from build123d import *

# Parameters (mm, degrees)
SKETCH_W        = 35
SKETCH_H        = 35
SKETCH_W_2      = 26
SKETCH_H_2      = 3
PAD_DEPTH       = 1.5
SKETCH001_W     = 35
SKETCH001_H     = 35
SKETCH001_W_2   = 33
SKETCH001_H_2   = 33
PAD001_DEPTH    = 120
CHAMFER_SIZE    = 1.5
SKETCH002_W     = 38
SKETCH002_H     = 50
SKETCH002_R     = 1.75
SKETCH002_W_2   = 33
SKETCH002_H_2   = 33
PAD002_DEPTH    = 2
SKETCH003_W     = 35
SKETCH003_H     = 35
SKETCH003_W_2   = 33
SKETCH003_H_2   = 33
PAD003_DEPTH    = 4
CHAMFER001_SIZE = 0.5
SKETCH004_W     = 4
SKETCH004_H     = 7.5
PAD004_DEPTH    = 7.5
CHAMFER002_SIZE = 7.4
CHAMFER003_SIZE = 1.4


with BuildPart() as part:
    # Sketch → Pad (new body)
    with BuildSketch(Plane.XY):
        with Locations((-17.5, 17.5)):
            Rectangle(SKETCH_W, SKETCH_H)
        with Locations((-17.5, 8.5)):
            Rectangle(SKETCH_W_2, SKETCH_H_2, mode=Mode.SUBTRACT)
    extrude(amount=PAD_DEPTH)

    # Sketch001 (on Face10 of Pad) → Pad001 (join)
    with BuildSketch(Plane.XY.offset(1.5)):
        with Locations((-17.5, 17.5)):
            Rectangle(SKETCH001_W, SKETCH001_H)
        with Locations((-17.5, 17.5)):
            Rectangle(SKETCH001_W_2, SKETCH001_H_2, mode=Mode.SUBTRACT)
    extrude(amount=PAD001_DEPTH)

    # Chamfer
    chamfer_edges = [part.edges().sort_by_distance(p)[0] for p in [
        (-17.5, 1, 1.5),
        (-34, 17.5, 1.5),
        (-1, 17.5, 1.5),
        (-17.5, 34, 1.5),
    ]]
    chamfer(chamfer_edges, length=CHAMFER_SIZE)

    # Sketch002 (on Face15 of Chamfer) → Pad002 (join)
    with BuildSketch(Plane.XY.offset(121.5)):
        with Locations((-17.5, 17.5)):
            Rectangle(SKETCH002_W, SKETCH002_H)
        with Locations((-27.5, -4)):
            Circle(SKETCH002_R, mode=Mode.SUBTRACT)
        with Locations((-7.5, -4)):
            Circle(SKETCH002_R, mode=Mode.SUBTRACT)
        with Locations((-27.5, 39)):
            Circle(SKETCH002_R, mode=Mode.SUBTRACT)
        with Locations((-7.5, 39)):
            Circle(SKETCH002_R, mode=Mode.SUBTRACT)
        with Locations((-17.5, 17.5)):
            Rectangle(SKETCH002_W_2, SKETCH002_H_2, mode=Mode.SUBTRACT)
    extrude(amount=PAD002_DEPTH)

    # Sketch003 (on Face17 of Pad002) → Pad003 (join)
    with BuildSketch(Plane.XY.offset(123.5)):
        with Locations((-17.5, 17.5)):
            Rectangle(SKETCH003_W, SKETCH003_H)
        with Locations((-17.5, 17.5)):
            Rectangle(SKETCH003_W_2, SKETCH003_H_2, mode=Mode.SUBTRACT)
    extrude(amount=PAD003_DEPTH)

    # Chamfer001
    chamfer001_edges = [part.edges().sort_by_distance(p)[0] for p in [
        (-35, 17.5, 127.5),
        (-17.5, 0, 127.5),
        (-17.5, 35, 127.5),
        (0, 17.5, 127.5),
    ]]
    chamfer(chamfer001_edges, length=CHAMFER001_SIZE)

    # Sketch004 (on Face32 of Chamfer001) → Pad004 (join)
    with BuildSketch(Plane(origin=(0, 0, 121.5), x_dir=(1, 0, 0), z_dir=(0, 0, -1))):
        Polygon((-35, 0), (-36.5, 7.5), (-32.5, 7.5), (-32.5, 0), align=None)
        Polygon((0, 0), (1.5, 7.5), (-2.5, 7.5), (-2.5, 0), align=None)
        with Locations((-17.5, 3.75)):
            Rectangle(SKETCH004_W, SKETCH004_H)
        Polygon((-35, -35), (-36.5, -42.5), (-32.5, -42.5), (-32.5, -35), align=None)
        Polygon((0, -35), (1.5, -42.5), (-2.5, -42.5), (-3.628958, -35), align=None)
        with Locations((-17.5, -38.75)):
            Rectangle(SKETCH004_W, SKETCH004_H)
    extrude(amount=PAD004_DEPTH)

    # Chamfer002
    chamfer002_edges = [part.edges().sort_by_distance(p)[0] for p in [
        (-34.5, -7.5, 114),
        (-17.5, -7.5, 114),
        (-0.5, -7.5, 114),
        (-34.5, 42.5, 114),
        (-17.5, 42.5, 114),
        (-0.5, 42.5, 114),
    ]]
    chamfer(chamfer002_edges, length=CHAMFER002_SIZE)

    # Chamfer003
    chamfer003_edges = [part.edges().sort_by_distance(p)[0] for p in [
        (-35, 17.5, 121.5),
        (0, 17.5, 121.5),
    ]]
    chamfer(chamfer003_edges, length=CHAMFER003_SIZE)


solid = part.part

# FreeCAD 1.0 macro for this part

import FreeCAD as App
import Part
import Sketcher
from FreeCAD import Vector


def edges_at(feature, points):
    """Names of the edges that pass closest to the given points."""
    edges = feature.Shape.Edges
    near = lambda p: min(range(len(edges)), key=lambda i: edges[i].distToShape(Part.Vertex(*p))[0])
    return sorted({f"Edge{near(p) + 1}" for p in points})

doc = App.newDocument("Part")
body = doc.addObject("PartDesign::Body", "Body")

# Sketch on XY plane
sketch1 = body.newObject("Sketcher::SketchObject", "Sketch")
sketch1.AttachmentSupport = (doc.getObject("XY_Plane"), [""])
sketch1.MapMode = "FlatFace"
sketch1.addGeometry([
    Part.LineSegment(Vector(-35, 35, 0), Vector(-35, 0, 0)),  # 0
    Part.LineSegment(Vector(-35, 0, 0), Vector(0, 0, 0)),  # 1
    Part.LineSegment(Vector(0, 0, 0), Vector(0, 35, 0)),  # 2
    Part.LineSegment(Vector(0, 35, 0), Vector(-35, 35, 0)),  # 3
    Part.LineSegment(Vector(-4.5, 7, 0), Vector(-30.5, 7, 0)),  # 4
    Part.LineSegment(Vector(-30.5, 7, 0), Vector(-30.5, 10, 0)),  # 5
    Part.LineSegment(Vector(-30.5, 10, 0), Vector(-4.5, 10, 0)),  # 6
    Part.LineSegment(Vector(-4.5, 10, 0), Vector(-4.5, 7, 0)),  # 7
], False)
sketch1.addConstraint([
    Sketcher.Constraint("Coincident", 0, 2, 1, 1),
    Sketcher.Constraint("Coincident", 1, 2, 2, 1),
    Sketcher.Constraint("Coincident", 2, 2, 3, 1),
    Sketcher.Constraint("Coincident", 3, 2, 0, 1),
    Sketcher.Constraint("Coincident", 4, 2, 5, 1),
    Sketcher.Constraint("Coincident", 5, 2, 6, 1),
    Sketcher.Constraint("Coincident", 6, 2, 7, 1),
    Sketcher.Constraint("Coincident", 7, 2, 4, 1),
    Sketcher.Constraint("Vertical", 0),
    Sketcher.Constraint("Horizontal", 1),
    Sketcher.Constraint("Vertical", 2),
    Sketcher.Constraint("Horizontal", 3),
    Sketcher.Constraint("Horizontal", 4),
    Sketcher.Constraint("Vertical", 5),
    Sketcher.Constraint("Horizontal", 6),
    Sketcher.Constraint("Vertical", 7),
    Sketcher.Constraint("Coincident", 1, 2, -1, 1),
    Sketcher.Constraint("Equal", 3, 0),
    Sketcher.Constraint("DistanceX", 1, 1, 1, 2, 35.0),
    Sketcher.Constraint("DistanceX", 4, 2, 4, 1, 26.0),
    Sketcher.Constraint("DistanceY", 5, 1, 5, 2, 3.0),
    Sketcher.Constraint("DistanceY", -1, 1, 4, 2, 7.0),
    Sketcher.Constraint("DistanceX", 4, 2, -1, 1, 30.5),
])
pad1 = body.newObject("PartDesign::Pad", "Pad")
pad1.Profile = sketch1
pad1.Length = 1.5

# Sketch on XY plane
sketch2 = body.newObject("Sketcher::SketchObject", "Sketch001")
sketch2.AttachmentSupport = (doc.getObject("XY_Plane"), [""])
sketch2.MapMode = "FlatFace"
sketch2.AttachmentOffset = App.Placement(Vector(0, 0, 1.5), App.Rotation())
sketch2.addGeometry([
    Part.LineSegment(Vector(-35, 35, 0), Vector(-35, 0, 0)),  # 0
    Part.LineSegment(Vector(-35, 0, 0), Vector(0, 0, 0)),  # 1
    Part.LineSegment(Vector(0, 0, 0), Vector(0, 35, 0)),  # 2
    Part.LineSegment(Vector(0, 35, 0), Vector(-35, 35, 0)),  # 3
    Part.LineSegment(Vector(-1, 1, 0), Vector(-34, 1, 0)),  # 4
    Part.LineSegment(Vector(-34, 1, 0), Vector(-34, 34, 0)),  # 5
    Part.LineSegment(Vector(-34, 34, 0), Vector(-1, 34, 0)),  # 6
    Part.LineSegment(Vector(-1, 34, 0), Vector(-1, 1, 0)),  # 7
], False)
sketch2.addConstraint([
    Sketcher.Constraint("Coincident", 0, 2, 1, 1),
    Sketcher.Constraint("Coincident", 1, 2, 2, 1),
    Sketcher.Constraint("Coincident", 2, 2, 3, 1),
    Sketcher.Constraint("Coincident", 3, 2, 0, 1),
    Sketcher.Constraint("Coincident", 4, 2, 5, 1),
    Sketcher.Constraint("Coincident", 5, 2, 6, 1),
    Sketcher.Constraint("Coincident", 6, 2, 7, 1),
    Sketcher.Constraint("Coincident", 7, 2, 4, 1),
    Sketcher.Constraint("Vertical", 0),
    Sketcher.Constraint("Horizontal", 1),
    Sketcher.Constraint("Vertical", 2),
    Sketcher.Constraint("Horizontal", 3),
    Sketcher.Constraint("Horizontal", 4),
    Sketcher.Constraint("Vertical", 5),
    Sketcher.Constraint("Horizontal", 6),
    Sketcher.Constraint("Vertical", 7),
    Sketcher.Constraint("Coincident", 1, 2, -1, 1),
    Sketcher.Constraint("Equal", 3, 0),
    Sketcher.Constraint("Equal", 6, 5),
    Sketcher.Constraint("DistanceX", 1, 1, 1, 2, 35.0),
    Sketcher.Constraint("DistanceX", 4, 2, 4, 1, 33.0),
    Sketcher.Constraint("DistanceX", 4, 2, -1, 1, 34.0),
    Sketcher.Constraint("DistanceY", -1, 1, 4, 2, 1.0),
])
pad2 = body.newObject("PartDesign::Pad", "Pad001")
pad2.Profile = sketch2
pad2.Length = 120
doc.recompute()

chamfer = body.newObject("PartDesign::Chamfer", "Chamfer")
chamfer.Base = (pad2, edges_at(pad2, [
    (-17.5, 1, 1.5),
    (-34, 17.5, 1.5),
    (-1, 17.5, 1.5),
    (-17.5, 34, 1.5),
]))
chamfer.Size = 1.5

# Sketch on XY plane
sketch3 = body.newObject("Sketcher::SketchObject", "Sketch002")
sketch3.AttachmentSupport = (doc.getObject("XY_Plane"), [""])
sketch3.MapMode = "FlatFace"
sketch3.AttachmentOffset = App.Placement(Vector(0, 0, 121.5), App.Rotation())
sketch3.addGeometry([
    Part.LineSegment(Vector(-36.5, 42.5, 0), Vector(-36.5, -7.5, 0)),  # 0
    Part.LineSegment(Vector(-36.5, -7.5, 0), Vector(1.5, -7.5, 0)),  # 1
    Part.LineSegment(Vector(1.5, -7.5, 0), Vector(1.5, 42.5, 0)),  # 2
    Part.LineSegment(Vector(1.5, 42.5, 0), Vector(-36.5, 42.5, 0)),  # 3
    Part.Circle(Vector(-27.5, -4, 0), Vector(0, 0, 1), 1.8),  # 4
    Part.Circle(Vector(-7.5, -4, 0), Vector(0, 0, 1), 1.8),  # 5
    Part.Circle(Vector(-27.5, 39, 0), Vector(0, 0, 1), 1.8),  # 6
    Part.LineSegment(Vector(-1, 1, 0), Vector(-34, 1, 0)),  # 7
    Part.LineSegment(Vector(-34, 1, 0), Vector(-34, 34, 0)),  # 8
    Part.LineSegment(Vector(-34, 34, 0), Vector(-1, 34, 0)),  # 9
    Part.LineSegment(Vector(-1, 34, 0), Vector(-1, 1, 0)),  # 10
    Part.Circle(Vector(-7.5, 39, 0), Vector(0, 0, 1), 1.8),  # 11
], False)
sketch3.addConstraint([
    Sketcher.Constraint("Coincident", 0, 2, 1, 1),
    Sketcher.Constraint("Coincident", 1, 2, 2, 1),
    Sketcher.Constraint("Coincident", 2, 2, 3, 1),
    Sketcher.Constraint("Coincident", 3, 2, 0, 1),
    Sketcher.Constraint("Coincident", 7, 2, 8, 1),
    Sketcher.Constraint("Coincident", 8, 2, 9, 1),
    Sketcher.Constraint("Coincident", 9, 2, 10, 1),
    Sketcher.Constraint("Coincident", 10, 2, 7, 1),
    Sketcher.Constraint("Vertical", 0),
    Sketcher.Constraint("Horizontal", 1),
    Sketcher.Constraint("Vertical", 2),
    Sketcher.Constraint("Horizontal", 3),
    Sketcher.Constraint("Horizontal", 7),
    Sketcher.Constraint("Vertical", 8),
    Sketcher.Constraint("Horizontal", 9),
    Sketcher.Constraint("Vertical", 10),
    Sketcher.Constraint("Equal", 4, 5),
    Sketcher.Constraint("Equal", 5, 6),
    Sketcher.Constraint("Equal", 6, 11),
    Sketcher.Constraint("Horizontal", 4, 3, 5, 3),
    Sketcher.Constraint("Horizontal", 6, 3, 11, 3),
    Sketcher.Constraint("Vertical", 4, 3, 6, 3),
    Sketcher.Constraint("Vertical", 5, 3, 11, 3),
    Sketcher.Constraint("Equal", 9, 8),
    Sketcher.Constraint("Diameter", 4, 3.5),
    Sketcher.Constraint("DistanceX", 1, 1, 1, 2, 38.0),
    Sketcher.Constraint("DistanceX", 7, 2, 7, 1, 33.0),
    Sketcher.Constraint("DistanceY", 0, 2, 0, 1, 50.0),
    Sketcher.Constraint("DistanceY", 4, 3, -1, 1, 4.0),
    Sketcher.Constraint("DistanceY", -1, 1, 6, 3, 39.0),
    Sketcher.Constraint("DistanceX", 7, 2, -1, 1, 34.0),
    Sketcher.Constraint("DistanceY", -1, 1, 7, 2, 1.0),
    Sketcher.Constraint("DistanceX", 4, 3, 5, 3, 20.0),
    Sketcher.Constraint("DistanceX", 0, 2, 4, 3, 9.0),
    Sketcher.Constraint("DistanceX", 4, 3, -1, 1, 27.5),
    Sketcher.Constraint("DistanceY", 0, 2, -1, 1, 7.5),
])
pad3 = body.newObject("PartDesign::Pad", "Pad002")
pad3.Profile = sketch3
pad3.Length = 2

# Sketch on XY plane
sketch4 = body.newObject("Sketcher::SketchObject", "Sketch003")
sketch4.AttachmentSupport = (doc.getObject("XY_Plane"), [""])
sketch4.MapMode = "FlatFace"
sketch4.AttachmentOffset = App.Placement(Vector(0, 0, 123.5), App.Rotation())
sketch4.addGeometry([
    Part.LineSegment(Vector(-35, 35, 0), Vector(-35, 0, 0)),  # 0
    Part.LineSegment(Vector(-35, 0, 0), Vector(0, 0, 0)),  # 1
    Part.LineSegment(Vector(0, 0, 0), Vector(0, 35, 0)),  # 2
    Part.LineSegment(Vector(0, 35, 0), Vector(-35, 35, 0)),  # 3
    Part.LineSegment(Vector(-1, 1, 0), Vector(-34, 1, 0)),  # 4
    Part.LineSegment(Vector(-34, 1, 0), Vector(-34, 34, 0)),  # 5
    Part.LineSegment(Vector(-34, 34, 0), Vector(-1, 34, 0)),  # 6
    Part.LineSegment(Vector(-1, 34, 0), Vector(-1, 1, 0)),  # 7
], False)
sketch4.addConstraint([
    Sketcher.Constraint("Coincident", 0, 2, 1, 1),
    Sketcher.Constraint("Coincident", 1, 2, 2, 1),
    Sketcher.Constraint("Coincident", 2, 2, 3, 1),
    Sketcher.Constraint("Coincident", 3, 2, 0, 1),
    Sketcher.Constraint("Coincident", 4, 2, 5, 1),
    Sketcher.Constraint("Coincident", 5, 2, 6, 1),
    Sketcher.Constraint("Coincident", 6, 2, 7, 1),
    Sketcher.Constraint("Coincident", 7, 2, 4, 1),
    Sketcher.Constraint("Vertical", 0),
    Sketcher.Constraint("Horizontal", 1),
    Sketcher.Constraint("Vertical", 2),
    Sketcher.Constraint("Horizontal", 3),
    Sketcher.Constraint("Horizontal", 4),
    Sketcher.Constraint("Vertical", 5),
    Sketcher.Constraint("Horizontal", 6),
    Sketcher.Constraint("Vertical", 7),
    Sketcher.Constraint("Coincident", 1, 2, -1, 1),
    Sketcher.Constraint("Equal", 3, 0),
    Sketcher.Constraint("Equal", 6, 5),
    Sketcher.Constraint("DistanceX", 1, 1, 1, 2, 35.0),
    Sketcher.Constraint("DistanceX", 4, 2, 4, 1, 33.0),
    Sketcher.Constraint("DistanceX", 4, 2, -1, 1, 34.0),
    Sketcher.Constraint("DistanceY", -1, 1, 4, 2, 1.0),
])
pad4 = body.newObject("PartDesign::Pad", "Pad003")
pad4.Profile = sketch4
pad4.Length = 4
doc.recompute()

chamfer2 = body.newObject("PartDesign::Chamfer", "Chamfer001")
chamfer2.Base = (pad4, edges_at(pad4, [
    (-35, 17.5, 127.5),
    (-17.5, 0, 127.5),
    (-17.5, 35, 127.5),
    (0, 17.5, 127.5),
]))
chamfer2.Size = 0.5

# Sketch on XY plane
sketch5 = body.newObject("Sketcher::SketchObject", "Sketch004")
sketch5.AttachmentSupport = (doc.getObject("XY_Plane"), [""])
sketch5.MapMode = "FlatFace"
sketch5.AttachmentOffset = App.Placement(Vector(0, 0, 121.5), App.Rotation())
sketch5.addGeometry([
    Part.LineSegment(Vector(-36.5, -7.5, 0), Vector(-35, 0, 0)),  # 0
    Part.LineSegment(Vector(-35, 0, 0), Vector(-32.5, 0, 0)),  # 1
    Part.LineSegment(Vector(-32.5, 0, 0), Vector(-32.5, -7.5, 0)),  # 2
    Part.LineSegment(Vector(-32.5, -7.5, 0), Vector(-36.5, -7.5, 0)),  # 3
    Part.LineSegment(Vector(0, 0, 0), Vector(1.5, -7.5, 0)),  # 4
    Part.LineSegment(Vector(1.5, -7.5, 0), Vector(-2.5, -7.5, 0)),  # 5
    Part.LineSegment(Vector(-2.5, -7.5, 0), Vector(-2.5, 0, 0)),  # 6
    Part.LineSegment(Vector(-2.5, 0, 0), Vector(0, 0, 0)),  # 7
    Part.LineSegment(Vector(-19.5, -7.5, 0), Vector(-19.5, 0, 0)),  # 8
    Part.LineSegment(Vector(-19.5, 0, 0), Vector(-15.5, 0, 0)),  # 9
    Part.LineSegment(Vector(-15.5, 0, 0), Vector(-15.5, -7.5, 0)),  # 10
    Part.LineSegment(Vector(-15.5, -7.5, 0), Vector(-19.5, -7.5, 0)),  # 11
    Part.LineSegment(Vector(-35, 35, 0), Vector(-36.5, 42.5, 0)),  # 12
    Part.LineSegment(Vector(-36.5, 42.5, 0), Vector(-32.5, 42.5, 0)),  # 13
    Part.LineSegment(Vector(-32.5, 42.5, 0), Vector(-32.5, 35, 0)),  # 14
    Part.LineSegment(Vector(-32.5, 35, 0), Vector(-35, 35, 0)),  # 15
    Part.LineSegment(Vector(1.5, 42.5, 0), Vector(0, 35, 0)),  # 16
    Part.LineSegment(Vector(0, 35, 0), Vector(-3.6, 35, 0)),  # 17
    Part.LineSegment(Vector(-3.6, 35, 0), Vector(-2.5, 42.5, 0)),  # 18
    Part.LineSegment(Vector(-2.5, 42.5, 0), Vector(1.5, 42.5, 0)),  # 19
    Part.LineSegment(Vector(-19.5, 35, 0), Vector(-19.5, 42.5, 0)),  # 20
    Part.LineSegment(Vector(-19.5, 42.5, 0), Vector(-15.5, 42.5, 0)),  # 21
    Part.LineSegment(Vector(-15.5, 42.5, 0), Vector(-15.5, 35, 0)),  # 22
    Part.LineSegment(Vector(-15.5, 35, 0), Vector(-19.5, 35, 0)),  # 23
], False)
sketch5.addConstraint([
    Sketcher.Constraint("Coincident", 0, 2, 1, 1),
    Sketcher.Constraint("Coincident", 1, 2, 2, 1),
    Sketcher.Constraint("Coincident", 2, 2, 3, 1),
    Sketcher.Constraint("Coincident", 3, 2, 0, 1),
    Sketcher.Constraint("Coincident", 4, 2, 5, 1),
    Sketcher.Constraint("Coincident", 5, 2, 6, 1),
    Sketcher.Constraint("Coincident", 6, 2, 7, 1),
    Sketcher.Constraint("Coincident", 7, 2, 4, 1),
    Sketcher.Constraint("Coincident", 8, 2, 9, 1),
    Sketcher.Constraint("Coincident", 9, 2, 10, 1),
    Sketcher.Constraint("Coincident", 10, 2, 11, 1),
    Sketcher.Constraint("Coincident", 11, 2, 8, 1),
    Sketcher.Constraint("Coincident", 12, 2, 13, 1),
    Sketcher.Constraint("Coincident", 13, 2, 14, 1),
    Sketcher.Constraint("Coincident", 14, 2, 15, 1),
    Sketcher.Constraint("Coincident", 15, 2, 12, 1),
    Sketcher.Constraint("Coincident", 16, 2, 17, 1),
    Sketcher.Constraint("Coincident", 17, 2, 18, 1),
    Sketcher.Constraint("Coincident", 18, 2, 19, 1),
    Sketcher.Constraint("Coincident", 19, 2, 16, 1),
    Sketcher.Constraint("Coincident", 20, 2, 21, 1),
    Sketcher.Constraint("Coincident", 21, 2, 22, 1),
    Sketcher.Constraint("Coincident", 22, 2, 23, 1),
    Sketcher.Constraint("Coincident", 23, 2, 20, 1),
    Sketcher.Constraint("Horizontal", 1),
    Sketcher.Constraint("Vertical", 2),
    Sketcher.Constraint("Horizontal", 3),
    Sketcher.Constraint("Horizontal", 5),
    Sketcher.Constraint("Vertical", 6),
    Sketcher.Constraint("Horizontal", 7),
    Sketcher.Constraint("Vertical", 8),
    Sketcher.Constraint("Horizontal", 9),
    Sketcher.Constraint("Vertical", 10),
    Sketcher.Constraint("Horizontal", 11),
    Sketcher.Constraint("Horizontal", 13),
    Sketcher.Constraint("Vertical", 14),
    Sketcher.Constraint("Horizontal", 15),
    Sketcher.Constraint("Horizontal", 17),
    Sketcher.Constraint("Horizontal", 19),
    Sketcher.Constraint("Vertical", 20),
    Sketcher.Constraint("Horizontal", 21),
    Sketcher.Constraint("Vertical", 22),
    Sketcher.Constraint("Horizontal", 23),
    Sketcher.Constraint("Coincident", 7, 2, -1, 1),
    Sketcher.Constraint("PointOnObject", 0, 2, -1),
    Sketcher.Constraint("PointOnObject", 8, 2, -1),
    Sketcher.Constraint("PointOnObject", 16, 2, -2),
    Sketcher.Constraint("Parallel", 4, 12),
    Sketcher.Constraint("Parallel", 0, 16),
    Sketcher.Constraint("Horizontal", 3, 2, 4, 2),
    Sketcher.Constraint("Horizontal", 5, 2, 10, 2),
    Sketcher.Constraint("Horizontal", 15, 2, 16, 2),
    Sketcher.Constraint("Horizontal", 13, 2, 18, 2),
    Sketcher.Constraint("Horizontal", 19, 2, 20, 2),
    Sketcher.Constraint("Horizontal", 17, 2, 22, 2),
    Sketcher.Constraint("Vertical", 3, 2, 12, 2),
    Sketcher.Constraint("Vertical", 2, 2, 13, 2),
    Sketcher.Constraint("Vertical", 0, 2, 15, 2),
    Sketcher.Constraint("Vertical", 6, 2, 18, 2),
    Sketcher.Constraint("Vertical", 4, 2, 19, 2),
    Sketcher.Constraint("Vertical", 11, 2, 20, 2),
    Sketcher.Constraint("Vertical", 10, 2, 21, 2),
    Sketcher.Constraint("Equal", 3, 5),
    Sketcher.Constraint("Equal", 5, 9),
    Sketcher.Constraint("DistanceX", 3, 2, 3, 1, 4.0),
    Sketcher.Constraint("DistanceX", 1, 1, 1, 2, 2.5),
    Sketcher.Constraint("DistanceY", 2, 2, 2, 1, 7.5),
    Sketcher.Constraint("DistanceX", 0, 2, -1, 1, 35.0),
    Sketcher.Constraint("DistanceY", -1, 1, 14, 2, 35.0),
    Sketcher.Constraint("DistanceX", 1, 2, 8, 2, 13.0),
    Sketcher.Constraint("DistanceX", 17, 2, 17, 1, 3.628958),
])
pad5 = body.newObject("PartDesign::Pad", "Pad004")
pad5.Profile = sketch5
pad5.Length = 7.5
pad5.Reversed = True
doc.recompute()

chamfer3 = body.newObject("PartDesign::Chamfer", "Chamfer002")
chamfer3.Base = (pad5, edges_at(pad5, [
    (-34.5, -7.5, 114),
    (-17.5, -7.5, 114),
    (-0.5, -7.5, 114),
    (-34.5, 42.5, 114),
    (-17.5, 42.5, 114),
    (-0.5, 42.5, 114),
]))
chamfer3.Size = 7.4
doc.recompute()

chamfer4 = body.newObject("PartDesign::Chamfer", "Chamfer003")
chamfer4.Base = (chamfer3, edges_at(chamfer3, [(-35, 17.5, 121.5), (0, 17.5, 121.5)]))
chamfer4.Size = 1.4

doc.recompute()
